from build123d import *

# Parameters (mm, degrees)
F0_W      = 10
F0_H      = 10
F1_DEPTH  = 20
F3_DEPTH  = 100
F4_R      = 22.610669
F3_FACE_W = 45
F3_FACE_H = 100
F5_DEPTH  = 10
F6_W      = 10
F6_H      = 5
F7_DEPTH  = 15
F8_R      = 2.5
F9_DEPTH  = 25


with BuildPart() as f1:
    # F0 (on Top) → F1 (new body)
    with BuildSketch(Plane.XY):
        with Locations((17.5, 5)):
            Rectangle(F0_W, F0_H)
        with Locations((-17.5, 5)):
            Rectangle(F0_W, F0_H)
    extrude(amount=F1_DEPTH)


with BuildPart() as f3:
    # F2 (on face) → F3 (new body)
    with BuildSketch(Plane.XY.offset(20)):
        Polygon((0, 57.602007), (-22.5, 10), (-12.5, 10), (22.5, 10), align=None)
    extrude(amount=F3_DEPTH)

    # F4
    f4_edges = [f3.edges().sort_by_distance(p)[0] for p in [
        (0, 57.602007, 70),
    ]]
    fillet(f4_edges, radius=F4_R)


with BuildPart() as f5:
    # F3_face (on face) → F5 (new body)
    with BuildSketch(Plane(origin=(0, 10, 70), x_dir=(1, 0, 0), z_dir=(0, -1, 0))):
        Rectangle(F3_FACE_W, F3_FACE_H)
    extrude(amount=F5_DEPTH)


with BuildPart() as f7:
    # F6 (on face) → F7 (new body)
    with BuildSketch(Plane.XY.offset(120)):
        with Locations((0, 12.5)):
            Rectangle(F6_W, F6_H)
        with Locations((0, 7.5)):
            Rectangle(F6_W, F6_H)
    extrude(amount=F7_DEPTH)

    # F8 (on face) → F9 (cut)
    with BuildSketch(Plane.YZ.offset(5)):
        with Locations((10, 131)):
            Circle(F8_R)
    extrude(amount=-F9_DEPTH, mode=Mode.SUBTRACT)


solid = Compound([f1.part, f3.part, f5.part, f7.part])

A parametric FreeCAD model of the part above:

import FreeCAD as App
import Part
import Sketcher


def edges_at(feature, points):
    """Names of the edges that pass closest to the given points."""
    edges = feature.Shape.Edges
    near = lambda p: min(range(len(edges)), key=lambda i: edges[i].distToShape(Part.Vertex(*p))[0])
    return sorted({f"Edge{near(p) + 1}" for p in points})


def add_polygon(sketch, points):
    """Adds a closed chain of lines whose ends are joined by coincident constraints."""
    first, n = sketch.GeometryCount, len(points)
    for a, b in zip(points, points[1:] + points[:1]):
        sketch.addGeometry(Part.LineSegment(App.Vector(*a, 0), App.Vector(*b, 0)), False)
    for i in range(n):
        sketch.addConstraint(Sketcher.Constraint("Coincident", first + i, 2, first + (i + 1) % n, 1))

doc = App.newDocument("Part")
body = doc.addObject("PartDesign::Body", "Body")
body.AllowCompound = True

# Sketch on XY plane
sketch1 = doc.addObject("Sketcher::SketchObject", "Sketch")
body.addObject(sketch1)
sketch1.AttachmentSupport = (doc.XY_Plane, [""])
sketch1.MapMode = "FlatFace"
add_polygon(sketch1, [(12, 10), (12, 0), (22, 0), (22, 10)])  # lines 0-3
add_polygon(sketch1, [(-22, 10), (-22, 0), (-12, 0), (-12, 10)])  # lines 4-7
sketch1.addConstraint([
    Sketcher.Constraint("Vertical", 0),
    Sketcher.Constraint("Horizontal", 1),
    Sketcher.Constraint("Vertical", 2),
    Sketcher.Constraint("Horizontal", 3),
    Sketcher.Constraint("Vertical", 4),
    Sketcher.Constraint("Horizontal", 5),
    Sketcher.Constraint("Vertical", 6),
    Sketcher.Constraint("Horizontal", 7),
    Sketcher.Constraint("Symmetric", 1, 2, 4, 2, -1, 1),
    Sketcher.Constraint("Symmetric", 0, 2, 5, 2, -2),
    Sketcher.Constraint("Horizontal", 3, 2, 6, 2),
    Sketcher.Constraint("Equal", 7, 0),
    Sketcher.Constraint("DistanceX", 1, 1, 1, 2, 10.0),
    Sketcher.Constraint("DistanceX", 4, 2, 0, 2, 35.0),
])
pad1 = doc.addObject("PartDesign::Pad", "Pad")
body.addObject(pad1)
pad1.Profile = sketch1
pad1.Length = 20
body2 = doc.addObject("PartDesign::Body", "Body001")

# Sketch on XY plane
sketch2 = doc.addObject("Sketcher::SketchObject", "Sketch001")
body2.addObject(sketch2)
sketch2.AttachmentSupport = (doc.getObject("XY_Plane001"), [""])
sketch2.MapMode = "FlatFace"
sketch2.AttachmentOffset = App.Placement(App.Vector(0, 0, 20), App.Rotation())
add_polygon(sketch2, [(0, 58), (-22, 10), (22, 10)])  # lines 0-2
sketch2.addConstraint([
    Sketcher.Constraint("Horizontal", 1),
    Sketcher.Constraint("PointOnObject", 2, 2, -2),
    Sketcher.Constraint("Equal", 0, 2),
    Sketcher.Constraint("DistanceX", 1, 1, 1, 2, 45.0),
    Sketcher.Constraint("DistanceY", -1, 1, 0, 2, 10.0),
    Sketcher.Constraint("Distance", 0, 52.651696),
])
pad2 = doc.addObject("PartDesign::Pad", "Pad001")
body2.addObject(pad2)
pad2.Profile = sketch2
pad2.Length = 100
doc.recompute()

fillet = doc.addObject("PartDesign::Fillet", "Fillet")
body2.addObject(fillet)
fillet.Base = (pad2, edges_at(pad2, [(0, 57.602, 70)]))
fillet.Radius = 22.610669
body3 = doc.addObject("PartDesign::Body", "Body002")

# Sketch on XZ plane
sketch3 = doc.addObject("Sketcher::SketchObject", "Sketch002")
body3.addObject(sketch3)
sketch3.AttachmentSupport = (doc.getObject("XZ_Plane002"), [""])
sketch3.MapMode = "FlatFace"
sketch3.AttachmentOffset = App.Placement(App.Vector(0, 0, -10), App.Rotation())
add_polygon(sketch3, [(-22, 120), (-22, 20), (22, 20), (22, 120)])  # lines 0-3
sketch3.addConstraint([
    Sketcher.Constraint("Vertical", 0),
    Sketcher.Constraint("Horizontal", 1),
    Sketcher.Constraint("Vertical", 2),
    Sketcher.Constraint("Horizontal", 3),
    Sketcher.Constraint("DistanceX", 1, 1, 1, 2, 45.0),
    Sketcher.Constraint("DistanceY", 0, 2, 0, 1, 100.0),
    Sketcher.Constraint("DistanceY", -1, 1, 0, 2, 20.0),
    Sketcher.Constraint("DistanceX", 0, 2, -1, 1, 22.5),
])
pad3 = doc.addObject("PartDesign::Pad", "Pad002")
body3.addObject(pad3)
pad3.Profile = sketch3
pad3.Length = 10
body4 = doc.addObject("PartDesign::Body", "Body003")

# Sketch on XY plane
sketch4 = doc.addObject("Sketcher::SketchObject", "Sketch003")
body4.addObject(sketch4)
sketch4.AttachmentSupport = (doc.getObject("XY_Plane003"), [""])
sketch4.MapMode = "FlatFace"
sketch4.AttachmentOffset = App.Placement(App.Vector(0, 0, 120), App.Rotation())
add_polygon(sketch4, [(-5, 15), (-5, 5), (5, 5), (5, 15)])  # lines 0-3
sketch4.addConstraint([
    Sketcher.Constraint("Vertical", 0),
    Sketcher.Constraint("Horizontal", 1),
    Sketcher.Constraint("Vertical", 2),
    Sketcher.Constraint("Horizontal", 3),
    Sketcher.Constraint("Equal", 3, 0),
    Sketcher.Constraint("DistanceX", 1, 1, 1, 2, 10.0),
    Sketcher.Constraint("DistanceX", 0, 2, -1, 1, 5.0),
    Sketcher.Constraint("DistanceY", -1, 1, 0, 2, 5.0),
])
pad4 = doc.addObject("PartDesign::Pad", "Pad003")
body4.addObject(pad4)
pad4.Profile = sketch4
pad4.Length = 15

# Sketch on YZ plane
sketch5 = doc.addObject("Sketcher::SketchObject", "Sketch004")
body4.addObject(sketch5)
sketch5.AttachmentSupport = (doc.getObject("YZ_Plane003"), [""])
sketch5.MapMode = "FlatFace"
sketch5.AttachmentOffset = App.Placement(App.Vector(0, 0, 5), App.Rotation())
sketch5.addGeometry(Part.Circle(App.Vector(10, 131, 0), App.Vector(0, 0, 1), 2.5), False)
sketch5.addConstraint([
    Sketcher.Constraint("Diameter", 0, 5.0),
    Sketcher.Constraint("DistanceX", -1, 1, 0, 3, 10.0),
    Sketcher.Constraint("DistanceY", -1, 1, 0, 3, 131.0),
])
pocket1 = doc.addObject("PartDesign::Pocket", "Pocket")
body4.addObject(pocket1)
pocket1.Profile = sketch5
pocket1.Length = 25

doc.recompute()
